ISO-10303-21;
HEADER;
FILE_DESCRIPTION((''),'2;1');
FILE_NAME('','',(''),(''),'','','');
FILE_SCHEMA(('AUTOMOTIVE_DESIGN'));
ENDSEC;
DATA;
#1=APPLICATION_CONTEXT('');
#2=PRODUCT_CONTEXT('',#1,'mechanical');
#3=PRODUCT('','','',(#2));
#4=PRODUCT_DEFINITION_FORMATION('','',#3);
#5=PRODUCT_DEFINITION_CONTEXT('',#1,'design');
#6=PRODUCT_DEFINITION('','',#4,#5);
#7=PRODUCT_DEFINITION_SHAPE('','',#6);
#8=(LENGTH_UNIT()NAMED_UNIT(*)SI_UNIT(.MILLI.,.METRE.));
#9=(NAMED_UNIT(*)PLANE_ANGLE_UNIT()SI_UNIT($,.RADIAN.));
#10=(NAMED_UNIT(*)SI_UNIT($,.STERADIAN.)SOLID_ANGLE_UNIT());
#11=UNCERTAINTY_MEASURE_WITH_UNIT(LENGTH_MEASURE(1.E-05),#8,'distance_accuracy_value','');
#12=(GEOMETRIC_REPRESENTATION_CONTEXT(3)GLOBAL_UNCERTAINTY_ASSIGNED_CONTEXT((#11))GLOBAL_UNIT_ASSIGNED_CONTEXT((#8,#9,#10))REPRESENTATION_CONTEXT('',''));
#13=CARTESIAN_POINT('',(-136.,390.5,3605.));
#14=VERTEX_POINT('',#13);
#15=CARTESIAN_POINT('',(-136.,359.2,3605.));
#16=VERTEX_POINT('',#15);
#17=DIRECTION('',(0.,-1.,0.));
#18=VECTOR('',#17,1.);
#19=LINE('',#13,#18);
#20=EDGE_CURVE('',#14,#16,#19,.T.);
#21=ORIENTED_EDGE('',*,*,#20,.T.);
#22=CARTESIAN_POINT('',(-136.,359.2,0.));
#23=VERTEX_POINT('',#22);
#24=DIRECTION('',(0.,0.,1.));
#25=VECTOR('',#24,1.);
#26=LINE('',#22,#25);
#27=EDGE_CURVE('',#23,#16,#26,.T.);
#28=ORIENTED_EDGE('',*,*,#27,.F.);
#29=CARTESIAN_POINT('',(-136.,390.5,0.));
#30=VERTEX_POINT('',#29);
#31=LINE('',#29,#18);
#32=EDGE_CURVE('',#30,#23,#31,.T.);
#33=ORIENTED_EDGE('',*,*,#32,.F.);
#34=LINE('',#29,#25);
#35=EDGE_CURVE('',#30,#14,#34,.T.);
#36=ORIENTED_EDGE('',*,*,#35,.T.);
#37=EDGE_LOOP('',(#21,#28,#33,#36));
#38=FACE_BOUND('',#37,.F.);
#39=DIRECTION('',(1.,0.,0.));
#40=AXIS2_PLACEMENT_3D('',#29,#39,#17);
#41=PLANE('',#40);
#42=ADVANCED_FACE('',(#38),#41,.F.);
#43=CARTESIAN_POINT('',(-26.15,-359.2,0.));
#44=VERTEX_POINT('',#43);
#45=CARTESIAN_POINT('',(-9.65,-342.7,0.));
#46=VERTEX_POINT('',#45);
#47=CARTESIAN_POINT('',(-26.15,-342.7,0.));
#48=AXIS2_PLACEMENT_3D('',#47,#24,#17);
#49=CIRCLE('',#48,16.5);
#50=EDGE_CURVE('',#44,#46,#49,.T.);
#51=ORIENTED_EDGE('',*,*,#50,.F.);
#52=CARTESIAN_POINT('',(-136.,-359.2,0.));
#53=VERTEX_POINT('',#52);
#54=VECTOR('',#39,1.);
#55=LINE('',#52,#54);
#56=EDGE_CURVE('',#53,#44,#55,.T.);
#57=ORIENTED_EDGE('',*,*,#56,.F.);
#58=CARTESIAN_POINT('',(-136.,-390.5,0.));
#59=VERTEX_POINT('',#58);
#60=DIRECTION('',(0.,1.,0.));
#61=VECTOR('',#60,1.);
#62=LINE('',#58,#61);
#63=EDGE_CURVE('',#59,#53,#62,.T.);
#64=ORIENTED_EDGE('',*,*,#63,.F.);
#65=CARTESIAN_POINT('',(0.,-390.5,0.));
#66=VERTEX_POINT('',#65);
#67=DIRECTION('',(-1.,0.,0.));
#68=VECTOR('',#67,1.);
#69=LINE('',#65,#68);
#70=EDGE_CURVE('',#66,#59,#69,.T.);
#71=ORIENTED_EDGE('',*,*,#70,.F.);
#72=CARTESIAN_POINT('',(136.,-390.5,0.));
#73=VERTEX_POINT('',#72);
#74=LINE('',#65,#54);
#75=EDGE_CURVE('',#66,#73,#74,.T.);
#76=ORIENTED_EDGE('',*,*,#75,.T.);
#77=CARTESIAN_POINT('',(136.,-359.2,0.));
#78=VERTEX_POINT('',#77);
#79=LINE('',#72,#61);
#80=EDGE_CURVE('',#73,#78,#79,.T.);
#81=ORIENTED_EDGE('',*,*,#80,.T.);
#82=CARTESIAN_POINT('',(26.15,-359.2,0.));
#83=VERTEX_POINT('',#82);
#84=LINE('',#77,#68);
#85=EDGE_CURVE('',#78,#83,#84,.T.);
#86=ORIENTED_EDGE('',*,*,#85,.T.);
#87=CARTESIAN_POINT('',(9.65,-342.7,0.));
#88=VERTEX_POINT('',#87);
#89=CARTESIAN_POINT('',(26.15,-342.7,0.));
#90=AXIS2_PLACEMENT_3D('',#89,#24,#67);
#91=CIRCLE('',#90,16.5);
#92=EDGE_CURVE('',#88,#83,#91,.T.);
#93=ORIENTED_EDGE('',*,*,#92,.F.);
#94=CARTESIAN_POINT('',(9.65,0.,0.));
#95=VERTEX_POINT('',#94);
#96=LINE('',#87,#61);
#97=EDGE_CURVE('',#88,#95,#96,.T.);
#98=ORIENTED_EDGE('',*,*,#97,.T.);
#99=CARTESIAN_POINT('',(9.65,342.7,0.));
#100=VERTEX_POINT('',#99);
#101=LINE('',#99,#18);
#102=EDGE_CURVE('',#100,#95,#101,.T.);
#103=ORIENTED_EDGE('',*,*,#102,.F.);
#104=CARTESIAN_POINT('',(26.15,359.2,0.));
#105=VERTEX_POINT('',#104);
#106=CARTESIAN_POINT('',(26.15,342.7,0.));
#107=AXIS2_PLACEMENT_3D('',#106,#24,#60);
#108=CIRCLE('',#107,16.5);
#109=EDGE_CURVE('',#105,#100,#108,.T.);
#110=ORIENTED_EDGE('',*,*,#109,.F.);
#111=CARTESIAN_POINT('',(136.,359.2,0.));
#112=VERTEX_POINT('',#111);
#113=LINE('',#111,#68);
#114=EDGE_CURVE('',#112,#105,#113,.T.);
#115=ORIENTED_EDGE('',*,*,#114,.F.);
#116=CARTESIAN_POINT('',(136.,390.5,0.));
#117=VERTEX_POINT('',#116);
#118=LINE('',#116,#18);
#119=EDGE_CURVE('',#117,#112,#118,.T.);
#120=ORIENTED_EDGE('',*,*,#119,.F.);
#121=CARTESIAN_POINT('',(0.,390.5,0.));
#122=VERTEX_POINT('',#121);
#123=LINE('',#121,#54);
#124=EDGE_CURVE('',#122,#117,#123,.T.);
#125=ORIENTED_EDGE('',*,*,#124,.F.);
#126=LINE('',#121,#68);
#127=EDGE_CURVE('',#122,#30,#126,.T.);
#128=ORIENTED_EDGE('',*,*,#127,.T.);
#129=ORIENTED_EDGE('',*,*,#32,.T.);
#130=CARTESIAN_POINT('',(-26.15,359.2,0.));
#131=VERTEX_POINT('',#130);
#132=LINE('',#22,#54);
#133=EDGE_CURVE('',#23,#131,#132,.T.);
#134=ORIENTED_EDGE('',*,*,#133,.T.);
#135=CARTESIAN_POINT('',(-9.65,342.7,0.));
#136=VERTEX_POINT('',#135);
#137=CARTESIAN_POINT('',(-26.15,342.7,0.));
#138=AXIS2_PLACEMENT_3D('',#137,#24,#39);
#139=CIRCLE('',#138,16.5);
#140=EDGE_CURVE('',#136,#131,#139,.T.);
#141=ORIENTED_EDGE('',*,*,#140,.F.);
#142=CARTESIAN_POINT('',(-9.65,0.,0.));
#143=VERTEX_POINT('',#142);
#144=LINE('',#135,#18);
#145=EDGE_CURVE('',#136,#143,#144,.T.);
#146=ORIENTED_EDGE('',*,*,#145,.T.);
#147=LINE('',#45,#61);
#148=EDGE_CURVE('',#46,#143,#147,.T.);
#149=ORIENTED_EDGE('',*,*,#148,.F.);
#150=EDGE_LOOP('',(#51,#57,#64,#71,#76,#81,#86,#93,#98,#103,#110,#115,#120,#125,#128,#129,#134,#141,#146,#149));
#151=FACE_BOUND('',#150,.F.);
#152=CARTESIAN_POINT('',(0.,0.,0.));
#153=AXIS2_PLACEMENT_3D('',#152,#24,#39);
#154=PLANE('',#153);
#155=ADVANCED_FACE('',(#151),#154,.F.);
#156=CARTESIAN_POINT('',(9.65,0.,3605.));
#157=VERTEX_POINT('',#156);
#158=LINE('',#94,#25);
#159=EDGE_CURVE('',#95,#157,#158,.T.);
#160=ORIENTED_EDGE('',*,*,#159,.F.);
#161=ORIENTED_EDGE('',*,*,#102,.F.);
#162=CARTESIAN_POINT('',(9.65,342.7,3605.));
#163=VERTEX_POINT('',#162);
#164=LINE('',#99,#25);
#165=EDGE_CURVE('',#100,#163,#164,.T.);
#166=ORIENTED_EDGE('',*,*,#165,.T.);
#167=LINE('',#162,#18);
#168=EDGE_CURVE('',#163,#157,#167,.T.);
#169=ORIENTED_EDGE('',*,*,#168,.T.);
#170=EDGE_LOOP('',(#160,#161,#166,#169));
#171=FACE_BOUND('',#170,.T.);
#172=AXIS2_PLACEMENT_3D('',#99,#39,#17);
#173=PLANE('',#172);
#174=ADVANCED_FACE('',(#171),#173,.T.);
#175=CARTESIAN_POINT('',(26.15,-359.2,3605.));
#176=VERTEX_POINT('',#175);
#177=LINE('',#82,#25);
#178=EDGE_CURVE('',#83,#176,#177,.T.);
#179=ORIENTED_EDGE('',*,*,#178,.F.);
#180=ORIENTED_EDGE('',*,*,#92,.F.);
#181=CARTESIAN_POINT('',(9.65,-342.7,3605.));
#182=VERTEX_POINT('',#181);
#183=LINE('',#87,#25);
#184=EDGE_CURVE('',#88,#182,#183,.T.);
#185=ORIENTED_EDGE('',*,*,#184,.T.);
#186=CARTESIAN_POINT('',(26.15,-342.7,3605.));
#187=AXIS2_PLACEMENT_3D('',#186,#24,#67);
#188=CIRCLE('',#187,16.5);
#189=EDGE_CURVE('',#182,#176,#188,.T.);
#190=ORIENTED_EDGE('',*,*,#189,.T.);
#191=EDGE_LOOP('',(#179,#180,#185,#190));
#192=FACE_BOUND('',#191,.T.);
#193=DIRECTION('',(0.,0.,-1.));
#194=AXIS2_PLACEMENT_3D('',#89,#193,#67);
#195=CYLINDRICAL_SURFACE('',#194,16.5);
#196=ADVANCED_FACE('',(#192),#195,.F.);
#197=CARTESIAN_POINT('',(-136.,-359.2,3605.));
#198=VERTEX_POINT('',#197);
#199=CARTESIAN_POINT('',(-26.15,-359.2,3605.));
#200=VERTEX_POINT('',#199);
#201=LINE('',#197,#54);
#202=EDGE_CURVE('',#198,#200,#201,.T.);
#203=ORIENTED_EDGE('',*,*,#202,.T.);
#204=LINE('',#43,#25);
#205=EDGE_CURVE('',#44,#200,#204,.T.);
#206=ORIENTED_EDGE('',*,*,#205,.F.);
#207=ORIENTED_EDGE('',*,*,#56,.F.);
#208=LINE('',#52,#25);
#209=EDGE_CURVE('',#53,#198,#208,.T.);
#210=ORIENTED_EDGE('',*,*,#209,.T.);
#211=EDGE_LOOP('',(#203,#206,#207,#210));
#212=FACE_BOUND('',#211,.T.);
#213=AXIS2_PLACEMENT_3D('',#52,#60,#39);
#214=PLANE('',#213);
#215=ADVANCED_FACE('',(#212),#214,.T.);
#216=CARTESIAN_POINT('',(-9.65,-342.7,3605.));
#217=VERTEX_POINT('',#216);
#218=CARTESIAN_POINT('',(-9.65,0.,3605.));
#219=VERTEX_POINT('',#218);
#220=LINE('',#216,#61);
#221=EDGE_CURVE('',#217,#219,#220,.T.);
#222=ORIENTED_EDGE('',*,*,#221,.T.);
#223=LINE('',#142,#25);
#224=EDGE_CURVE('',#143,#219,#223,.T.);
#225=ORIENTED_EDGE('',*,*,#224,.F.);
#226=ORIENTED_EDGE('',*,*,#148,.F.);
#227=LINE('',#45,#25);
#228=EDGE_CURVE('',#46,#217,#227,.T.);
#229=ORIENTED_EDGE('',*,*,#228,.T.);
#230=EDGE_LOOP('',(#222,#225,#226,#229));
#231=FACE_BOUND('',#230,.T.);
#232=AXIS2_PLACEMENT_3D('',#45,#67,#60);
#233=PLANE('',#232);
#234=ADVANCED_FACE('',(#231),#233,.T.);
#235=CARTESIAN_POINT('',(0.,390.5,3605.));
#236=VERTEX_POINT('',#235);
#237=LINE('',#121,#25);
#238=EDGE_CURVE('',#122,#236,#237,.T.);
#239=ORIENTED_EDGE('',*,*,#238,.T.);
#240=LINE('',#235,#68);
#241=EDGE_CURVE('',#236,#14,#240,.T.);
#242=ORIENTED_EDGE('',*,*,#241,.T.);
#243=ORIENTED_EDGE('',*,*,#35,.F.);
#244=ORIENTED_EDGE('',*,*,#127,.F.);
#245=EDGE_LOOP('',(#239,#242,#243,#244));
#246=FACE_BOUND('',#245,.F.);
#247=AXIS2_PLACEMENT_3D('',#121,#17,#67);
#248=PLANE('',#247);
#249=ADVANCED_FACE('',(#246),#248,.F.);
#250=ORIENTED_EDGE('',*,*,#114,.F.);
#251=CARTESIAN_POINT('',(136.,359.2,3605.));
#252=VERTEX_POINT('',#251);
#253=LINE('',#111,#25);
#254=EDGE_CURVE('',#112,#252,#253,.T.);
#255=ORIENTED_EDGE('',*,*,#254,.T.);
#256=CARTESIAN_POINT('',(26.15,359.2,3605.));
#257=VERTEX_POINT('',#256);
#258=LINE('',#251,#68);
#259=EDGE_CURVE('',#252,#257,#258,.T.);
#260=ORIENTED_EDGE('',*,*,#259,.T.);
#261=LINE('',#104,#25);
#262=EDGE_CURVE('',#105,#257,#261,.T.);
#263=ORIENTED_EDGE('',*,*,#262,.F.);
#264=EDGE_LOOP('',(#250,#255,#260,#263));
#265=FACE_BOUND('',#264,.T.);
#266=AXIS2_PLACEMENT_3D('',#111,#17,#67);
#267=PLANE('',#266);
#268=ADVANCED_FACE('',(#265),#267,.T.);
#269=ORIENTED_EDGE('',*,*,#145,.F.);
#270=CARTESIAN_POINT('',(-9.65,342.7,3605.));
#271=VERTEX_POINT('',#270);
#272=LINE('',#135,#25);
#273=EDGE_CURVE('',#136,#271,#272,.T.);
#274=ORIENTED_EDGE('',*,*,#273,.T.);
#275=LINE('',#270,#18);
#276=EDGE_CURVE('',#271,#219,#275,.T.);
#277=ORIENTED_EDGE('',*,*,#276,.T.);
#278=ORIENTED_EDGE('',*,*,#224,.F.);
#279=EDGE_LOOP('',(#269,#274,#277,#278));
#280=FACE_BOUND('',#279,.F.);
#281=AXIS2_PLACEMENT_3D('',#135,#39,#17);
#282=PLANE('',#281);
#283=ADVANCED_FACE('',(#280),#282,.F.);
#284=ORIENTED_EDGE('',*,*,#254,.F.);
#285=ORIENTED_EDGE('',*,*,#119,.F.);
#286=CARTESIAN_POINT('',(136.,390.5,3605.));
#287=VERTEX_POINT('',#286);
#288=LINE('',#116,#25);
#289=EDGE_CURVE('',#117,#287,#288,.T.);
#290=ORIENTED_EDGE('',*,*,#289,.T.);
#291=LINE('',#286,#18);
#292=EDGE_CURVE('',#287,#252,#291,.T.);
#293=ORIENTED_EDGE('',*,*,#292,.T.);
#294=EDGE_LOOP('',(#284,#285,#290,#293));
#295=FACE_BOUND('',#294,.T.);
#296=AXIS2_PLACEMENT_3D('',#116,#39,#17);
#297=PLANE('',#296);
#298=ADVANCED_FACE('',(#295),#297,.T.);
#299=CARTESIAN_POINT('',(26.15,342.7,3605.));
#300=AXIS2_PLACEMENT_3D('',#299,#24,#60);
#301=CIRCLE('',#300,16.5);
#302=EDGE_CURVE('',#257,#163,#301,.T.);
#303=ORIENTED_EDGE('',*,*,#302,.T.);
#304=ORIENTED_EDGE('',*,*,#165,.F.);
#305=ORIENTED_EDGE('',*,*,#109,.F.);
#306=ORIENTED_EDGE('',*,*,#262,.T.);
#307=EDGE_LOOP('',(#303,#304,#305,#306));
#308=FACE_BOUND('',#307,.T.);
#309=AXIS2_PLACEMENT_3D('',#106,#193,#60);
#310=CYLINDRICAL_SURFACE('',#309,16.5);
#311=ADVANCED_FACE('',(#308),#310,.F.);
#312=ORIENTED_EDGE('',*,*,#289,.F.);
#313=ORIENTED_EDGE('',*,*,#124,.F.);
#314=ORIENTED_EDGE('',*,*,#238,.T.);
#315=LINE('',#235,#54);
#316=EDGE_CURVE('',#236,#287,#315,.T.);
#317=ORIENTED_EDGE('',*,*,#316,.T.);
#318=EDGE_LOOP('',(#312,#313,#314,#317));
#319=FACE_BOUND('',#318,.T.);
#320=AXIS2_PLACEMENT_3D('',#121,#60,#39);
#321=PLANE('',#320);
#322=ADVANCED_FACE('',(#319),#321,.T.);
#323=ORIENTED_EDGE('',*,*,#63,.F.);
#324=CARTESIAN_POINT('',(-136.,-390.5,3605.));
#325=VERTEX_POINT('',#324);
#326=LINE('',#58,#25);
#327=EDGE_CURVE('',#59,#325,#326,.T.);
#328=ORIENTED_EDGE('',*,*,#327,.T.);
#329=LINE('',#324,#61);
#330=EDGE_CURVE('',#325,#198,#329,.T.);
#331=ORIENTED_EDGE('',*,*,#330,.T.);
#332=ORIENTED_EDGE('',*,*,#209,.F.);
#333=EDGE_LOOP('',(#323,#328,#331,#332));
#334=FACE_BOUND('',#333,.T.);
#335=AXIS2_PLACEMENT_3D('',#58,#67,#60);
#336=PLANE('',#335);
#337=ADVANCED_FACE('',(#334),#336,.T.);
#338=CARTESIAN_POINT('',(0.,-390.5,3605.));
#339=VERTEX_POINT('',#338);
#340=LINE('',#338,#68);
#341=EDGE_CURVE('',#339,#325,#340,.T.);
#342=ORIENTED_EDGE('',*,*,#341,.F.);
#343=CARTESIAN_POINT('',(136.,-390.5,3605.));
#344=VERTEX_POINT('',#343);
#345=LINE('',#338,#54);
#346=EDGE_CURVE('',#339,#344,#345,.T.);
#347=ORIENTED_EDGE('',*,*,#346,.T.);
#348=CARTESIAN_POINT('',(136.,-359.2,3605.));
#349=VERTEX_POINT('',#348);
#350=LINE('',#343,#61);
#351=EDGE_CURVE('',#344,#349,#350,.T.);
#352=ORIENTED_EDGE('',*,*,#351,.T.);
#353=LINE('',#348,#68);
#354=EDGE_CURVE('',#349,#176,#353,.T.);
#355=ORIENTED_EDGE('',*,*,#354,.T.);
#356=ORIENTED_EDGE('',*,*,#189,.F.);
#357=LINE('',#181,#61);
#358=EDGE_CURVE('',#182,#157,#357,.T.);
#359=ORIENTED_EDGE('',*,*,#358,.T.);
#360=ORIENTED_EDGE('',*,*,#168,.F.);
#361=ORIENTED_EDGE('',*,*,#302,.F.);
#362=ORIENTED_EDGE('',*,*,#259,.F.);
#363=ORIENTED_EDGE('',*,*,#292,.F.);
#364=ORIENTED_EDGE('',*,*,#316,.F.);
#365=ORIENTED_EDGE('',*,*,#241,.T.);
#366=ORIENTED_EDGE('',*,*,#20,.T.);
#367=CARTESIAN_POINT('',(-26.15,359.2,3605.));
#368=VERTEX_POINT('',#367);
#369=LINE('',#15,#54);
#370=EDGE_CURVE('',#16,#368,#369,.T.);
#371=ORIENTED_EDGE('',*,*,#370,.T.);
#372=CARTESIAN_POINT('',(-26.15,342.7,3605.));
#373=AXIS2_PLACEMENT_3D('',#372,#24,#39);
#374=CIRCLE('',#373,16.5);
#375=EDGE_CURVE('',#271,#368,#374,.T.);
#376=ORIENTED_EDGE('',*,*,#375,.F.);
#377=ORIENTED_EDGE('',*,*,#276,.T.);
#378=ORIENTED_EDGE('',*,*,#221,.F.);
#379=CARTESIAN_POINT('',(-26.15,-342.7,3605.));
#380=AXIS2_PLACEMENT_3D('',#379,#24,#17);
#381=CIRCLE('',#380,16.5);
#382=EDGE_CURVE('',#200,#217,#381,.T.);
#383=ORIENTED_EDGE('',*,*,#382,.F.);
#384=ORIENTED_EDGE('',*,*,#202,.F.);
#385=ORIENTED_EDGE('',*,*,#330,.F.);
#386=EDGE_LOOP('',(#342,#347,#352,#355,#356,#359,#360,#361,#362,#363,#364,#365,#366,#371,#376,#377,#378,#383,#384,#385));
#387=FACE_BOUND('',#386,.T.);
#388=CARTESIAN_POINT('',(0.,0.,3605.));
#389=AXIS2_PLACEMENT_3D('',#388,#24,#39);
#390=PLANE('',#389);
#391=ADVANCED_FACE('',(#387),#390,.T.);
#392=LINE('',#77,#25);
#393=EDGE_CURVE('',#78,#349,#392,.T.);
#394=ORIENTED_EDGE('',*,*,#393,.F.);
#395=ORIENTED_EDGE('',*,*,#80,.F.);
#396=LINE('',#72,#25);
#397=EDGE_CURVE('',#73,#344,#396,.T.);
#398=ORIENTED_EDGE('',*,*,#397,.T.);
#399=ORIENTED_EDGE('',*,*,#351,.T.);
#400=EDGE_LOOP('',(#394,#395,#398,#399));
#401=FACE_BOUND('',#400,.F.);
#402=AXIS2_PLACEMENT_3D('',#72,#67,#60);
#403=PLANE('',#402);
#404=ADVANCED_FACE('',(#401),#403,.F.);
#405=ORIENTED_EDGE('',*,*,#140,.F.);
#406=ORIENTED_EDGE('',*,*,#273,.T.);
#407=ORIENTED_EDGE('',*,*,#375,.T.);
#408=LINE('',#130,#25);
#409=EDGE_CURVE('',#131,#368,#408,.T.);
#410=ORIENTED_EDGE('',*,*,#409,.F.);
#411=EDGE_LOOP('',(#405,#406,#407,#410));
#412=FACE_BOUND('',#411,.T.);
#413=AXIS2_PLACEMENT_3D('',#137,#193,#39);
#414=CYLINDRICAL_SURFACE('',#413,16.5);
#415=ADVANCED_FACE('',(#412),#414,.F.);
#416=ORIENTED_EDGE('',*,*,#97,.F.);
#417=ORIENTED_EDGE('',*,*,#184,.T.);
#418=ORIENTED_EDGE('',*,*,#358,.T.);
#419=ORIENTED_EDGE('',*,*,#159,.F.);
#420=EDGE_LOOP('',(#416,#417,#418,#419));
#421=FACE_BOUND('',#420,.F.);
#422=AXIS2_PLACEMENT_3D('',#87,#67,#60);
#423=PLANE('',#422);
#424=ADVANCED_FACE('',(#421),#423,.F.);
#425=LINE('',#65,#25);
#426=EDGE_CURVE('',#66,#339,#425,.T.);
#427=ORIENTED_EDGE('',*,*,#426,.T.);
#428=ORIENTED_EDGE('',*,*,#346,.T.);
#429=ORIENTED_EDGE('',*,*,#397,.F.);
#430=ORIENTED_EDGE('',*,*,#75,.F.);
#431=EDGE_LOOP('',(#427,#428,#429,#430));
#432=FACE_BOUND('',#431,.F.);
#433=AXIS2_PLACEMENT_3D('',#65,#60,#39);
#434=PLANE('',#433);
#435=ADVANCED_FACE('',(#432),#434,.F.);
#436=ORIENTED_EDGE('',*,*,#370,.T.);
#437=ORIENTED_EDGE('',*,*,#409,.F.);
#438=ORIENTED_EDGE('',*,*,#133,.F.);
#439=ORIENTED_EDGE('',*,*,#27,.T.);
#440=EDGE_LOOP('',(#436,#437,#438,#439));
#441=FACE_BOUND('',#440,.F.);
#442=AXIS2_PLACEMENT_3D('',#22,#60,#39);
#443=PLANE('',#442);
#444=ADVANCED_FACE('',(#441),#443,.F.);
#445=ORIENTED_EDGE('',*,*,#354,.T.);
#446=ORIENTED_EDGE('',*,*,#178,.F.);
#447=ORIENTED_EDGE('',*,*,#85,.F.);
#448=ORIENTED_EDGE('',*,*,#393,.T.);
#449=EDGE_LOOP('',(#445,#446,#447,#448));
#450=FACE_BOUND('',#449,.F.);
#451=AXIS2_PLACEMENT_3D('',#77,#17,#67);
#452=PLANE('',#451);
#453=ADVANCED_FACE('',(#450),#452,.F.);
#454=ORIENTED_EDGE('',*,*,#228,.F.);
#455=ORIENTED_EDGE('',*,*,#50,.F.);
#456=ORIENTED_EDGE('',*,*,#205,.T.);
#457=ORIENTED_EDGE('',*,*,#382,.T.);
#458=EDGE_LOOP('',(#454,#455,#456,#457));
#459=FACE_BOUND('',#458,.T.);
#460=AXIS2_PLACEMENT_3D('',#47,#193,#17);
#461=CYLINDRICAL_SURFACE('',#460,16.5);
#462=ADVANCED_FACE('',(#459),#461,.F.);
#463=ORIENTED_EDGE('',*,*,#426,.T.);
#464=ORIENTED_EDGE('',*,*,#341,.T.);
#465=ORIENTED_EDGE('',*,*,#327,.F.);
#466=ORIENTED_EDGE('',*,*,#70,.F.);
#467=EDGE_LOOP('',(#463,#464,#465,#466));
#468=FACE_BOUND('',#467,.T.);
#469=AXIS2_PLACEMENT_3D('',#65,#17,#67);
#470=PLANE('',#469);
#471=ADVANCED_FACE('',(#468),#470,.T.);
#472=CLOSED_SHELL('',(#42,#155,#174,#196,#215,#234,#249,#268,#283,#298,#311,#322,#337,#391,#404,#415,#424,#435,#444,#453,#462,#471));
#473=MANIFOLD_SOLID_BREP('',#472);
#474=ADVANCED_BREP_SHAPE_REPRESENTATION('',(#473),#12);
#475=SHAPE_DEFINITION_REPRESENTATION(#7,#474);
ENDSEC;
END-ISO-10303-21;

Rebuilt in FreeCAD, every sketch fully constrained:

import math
import FreeCAD as App
import Part
import Sketcher
from FreeCAD import Vector

doc = App.newDocument("Part")
body = doc.addObject("PartDesign::Body", "Body")

# Sketch on XY plane
sketch1 = body.newObject("Sketcher::SketchObject", "Sketch")
sketch1.AttachmentSupport = (doc.getObject("XY_Plane"), [""])
sketch1.MapMode = "FlatFace"
sketch1.addGeometry([
    Part.LineSegment(Vector(-136, -359, 0), Vector(-136, -390, 0)),  # 0
    Part.LineSegment(Vector(-136, -390, 0), Vector(136, -390, 0)),  # 1
    Part.LineSegment(Vector(136, -390, 0), Vector(136, -359, 0)),  # 2
    Part.LineSegment(Vector(136, -359, 0), Vector(26, -359, 0)),  # 3
    Part.ArcOfCircle(Part.Circle(Vector(26, -343, 0), Vector(0, 0, 1), 16), math.radians(180), math.radians(270)),  # 4
    Part.LineSegment(Vector(10, -343, 0), Vector(10, 343, 0)),  # 5
    Part.ArcOfCircle(Part.Circle(Vector(26, 343, 0), Vector(0, 0, 1), 16), math.radians(90), math.radians(180)),  # 6
    Part.LineSegment(Vector(26, 359, 0), Vector(136, 359, 0)),  # 7
    Part.LineSegment(Vector(136, 359, 0), Vector(136, 390, 0)),  # 8
    Part.LineSegment(Vector(136, 390, 0), Vector(-136, 390, 0)),  # 9
    Part.LineSegment(Vector(-136, 390, 0), Vector(-136, 359, 0)),  # 10
    Part.LineSegment(Vector(-136, 359, 0), Vector(-26, 359, 0)),  # 11
    Part.ArcOfCircle(Part.Circle(Vector(-26, 343, 0), Vector(0, 0, 1), 16), math.radians(0), math.radians(90)),  # 12
    Part.LineSegment(Vector(-10, 343, 0), Vector(-10, -343, 0)),  # 13
    Part.ArcOfCircle(Part.Circle(Vector(-26, -343, 0), Vector(0, 0, 1), 16), math.radians(-90), math.radians(0)),  # 14
    Part.LineSegment(Vector(-26, -359, 0), Vector(-136, -359, 0)),  # 15
], False)
sketch1.addConstraint([
    Sketcher.Constraint("Coincident", 0, 2, 1, 1),
    Sketcher.Constraint("Coincident", 1, 2, 2, 1),
    Sketcher.Constraint("Coincident", 2, 2, 3, 1),
    Sketcher.Constraint("Tangent", 3, 2, 4, 2),
    Sketcher.Constraint("Tangent", 4, 1, 5, 1),
    Sketcher.Constraint("Tangent", 5, 2, 6, 2),
    Sketcher.Constraint("Tangent", 6, 1, 7, 1),
    Sketcher.Constraint("Coincident", 7, 2, 8, 1),
    Sketcher.Constraint("Coincident", 8, 2, 9, 1),
    Sketcher.Constraint("Coincident", 9, 2, 10, 1),
    Sketcher.Constraint("Coincident", 10, 2, 11, 1),
    Sketcher.Constraint("Tangent", 11, 2, 12, 2),
    Sketcher.Constraint("Tangent", 12, 1, 13, 1),
    Sketcher.Constraint("Tangent", 13, 2, 14, 2),
    Sketcher.Constraint("Tangent", 14, 1, 15, 1),
    Sketcher.Constraint("Coincident", 15, 2, 0, 1),
    Sketcher.Constraint("Vertical", 0),
    Sketcher.Constraint("Horizontal", 1),
    Sketcher.Constraint("Vertical", 2),
    Sketcher.Constraint("Horizontal", 3),
    Sketcher.Constraint("Vertical", 5),
    Sketcher.Constraint("Horizontal", 7),
    Sketcher.Constraint("Vertical", 8),
    Sketcher.Constraint("Horizontal", 9),
    Sketcher.Constraint("Vertical", 10),
    Sketcher.Constraint("Horizontal", 11),
    Sketcher.Constraint("Vertical", 13),
    Sketcher.Constraint("Horizontal", 15),
    Sketcher.Constraint("Equal", 4, 6),
    Sketcher.Constraint("Equal", 6, 12),
    Sketcher.Constraint("Equal", 12, 14),
    Sketcher.Constraint("Symmetric", 4, 3, 12, 3, -1, 1),
    Sketcher.Constraint("Symmetric", 0, 2, 8, 2, -1, 1),
    Sketcher.Constraint("Symmetric", 7, 2, 10, 2, -2),
    Sketcher.Constraint("Symmetric", 2, 2, 15, 2, -2),
    Sketcher.Constraint("Radius", 4, 16.5),
    Sketcher.Constraint("DistanceY", 0, 2, 0, 1, 31.3),
    Sketcher.Constraint("DistanceX", 0, 2, -1, 1, 136.0),
    Sketcher.Constraint("DistanceY", 0, 2, -1, 1, 390.5),
    Sketcher.Constraint("DistanceX", -1, 1, 4, 1, 9.65),
])
pad1 = body.newObject("PartDesign::Pad", "Pad")
pad1.Profile = sketch1
pad1.Length = 3605

doc.recompute()
